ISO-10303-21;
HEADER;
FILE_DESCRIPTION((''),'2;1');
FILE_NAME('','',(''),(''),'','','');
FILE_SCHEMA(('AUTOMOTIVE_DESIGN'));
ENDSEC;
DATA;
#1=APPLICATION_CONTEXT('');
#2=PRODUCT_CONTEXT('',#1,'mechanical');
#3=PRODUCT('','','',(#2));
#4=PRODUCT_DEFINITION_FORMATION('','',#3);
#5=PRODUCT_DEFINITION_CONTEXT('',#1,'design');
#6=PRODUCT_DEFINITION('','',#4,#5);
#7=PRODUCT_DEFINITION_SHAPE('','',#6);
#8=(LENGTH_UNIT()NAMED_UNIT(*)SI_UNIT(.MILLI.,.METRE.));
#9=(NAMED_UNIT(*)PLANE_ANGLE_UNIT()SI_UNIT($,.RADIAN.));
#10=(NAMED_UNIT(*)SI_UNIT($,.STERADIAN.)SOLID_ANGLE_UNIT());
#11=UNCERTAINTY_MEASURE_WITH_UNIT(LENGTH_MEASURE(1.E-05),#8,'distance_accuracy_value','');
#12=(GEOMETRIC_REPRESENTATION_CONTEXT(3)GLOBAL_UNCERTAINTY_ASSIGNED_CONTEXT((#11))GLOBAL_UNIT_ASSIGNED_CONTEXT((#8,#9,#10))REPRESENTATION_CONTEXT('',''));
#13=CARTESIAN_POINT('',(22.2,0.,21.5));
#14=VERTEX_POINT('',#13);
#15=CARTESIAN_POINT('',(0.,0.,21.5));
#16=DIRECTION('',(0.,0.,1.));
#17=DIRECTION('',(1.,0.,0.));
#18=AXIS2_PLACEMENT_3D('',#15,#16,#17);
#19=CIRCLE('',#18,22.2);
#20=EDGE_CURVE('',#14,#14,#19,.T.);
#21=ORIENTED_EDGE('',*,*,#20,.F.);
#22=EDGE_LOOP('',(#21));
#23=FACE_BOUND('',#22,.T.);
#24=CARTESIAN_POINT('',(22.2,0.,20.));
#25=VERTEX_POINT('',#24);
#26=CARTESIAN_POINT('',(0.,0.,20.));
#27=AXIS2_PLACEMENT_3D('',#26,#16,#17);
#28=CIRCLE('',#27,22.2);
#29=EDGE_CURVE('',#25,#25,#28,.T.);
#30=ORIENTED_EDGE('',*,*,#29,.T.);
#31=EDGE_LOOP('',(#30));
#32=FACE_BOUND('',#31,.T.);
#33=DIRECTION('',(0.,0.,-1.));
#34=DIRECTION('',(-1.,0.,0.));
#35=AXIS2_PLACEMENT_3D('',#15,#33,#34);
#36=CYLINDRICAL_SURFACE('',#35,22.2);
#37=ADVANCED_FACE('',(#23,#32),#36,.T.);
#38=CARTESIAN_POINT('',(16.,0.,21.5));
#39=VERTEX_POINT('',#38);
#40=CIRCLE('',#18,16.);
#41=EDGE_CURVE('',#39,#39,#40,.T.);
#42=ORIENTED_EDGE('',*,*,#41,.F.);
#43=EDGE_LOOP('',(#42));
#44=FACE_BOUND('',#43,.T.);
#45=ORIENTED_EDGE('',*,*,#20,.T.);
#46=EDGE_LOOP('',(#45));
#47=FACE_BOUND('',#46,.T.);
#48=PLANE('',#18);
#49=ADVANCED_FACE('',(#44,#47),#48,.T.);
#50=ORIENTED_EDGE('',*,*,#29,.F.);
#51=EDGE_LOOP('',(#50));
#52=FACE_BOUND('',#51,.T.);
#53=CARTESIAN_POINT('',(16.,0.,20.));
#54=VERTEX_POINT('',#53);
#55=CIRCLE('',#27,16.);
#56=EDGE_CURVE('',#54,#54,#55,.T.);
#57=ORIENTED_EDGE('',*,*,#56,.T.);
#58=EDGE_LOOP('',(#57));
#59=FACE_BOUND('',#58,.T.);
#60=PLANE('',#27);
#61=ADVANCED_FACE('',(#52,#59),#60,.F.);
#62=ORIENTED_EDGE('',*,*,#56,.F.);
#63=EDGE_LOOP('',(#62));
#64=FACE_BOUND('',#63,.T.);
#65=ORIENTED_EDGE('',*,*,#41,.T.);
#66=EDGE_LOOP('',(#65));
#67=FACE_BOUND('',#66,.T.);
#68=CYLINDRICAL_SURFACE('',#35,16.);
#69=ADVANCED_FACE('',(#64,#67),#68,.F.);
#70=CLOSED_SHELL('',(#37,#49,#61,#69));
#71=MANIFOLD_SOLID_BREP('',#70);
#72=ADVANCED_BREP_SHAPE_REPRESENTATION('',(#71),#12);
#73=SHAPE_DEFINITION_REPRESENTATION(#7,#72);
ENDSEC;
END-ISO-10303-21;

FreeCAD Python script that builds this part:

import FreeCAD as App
import Part
import Sketcher
from FreeCAD import Vector

doc = App.newDocument("Part")
body = doc.addObject("PartDesign::Body", "Body")

# Sketch on XY plane
sketch1 = body.newObject("Sketcher::SketchObject", "Sketch")
sketch1.AttachmentSupport = (doc.getObject("XY_Plane"), [""])
sketch1.MapMode = "FlatFace"
sketch1.AttachmentOffset = App.Placement(Vector(0, 0, 20), App.Rotation())
sketch1.addGeometry([
    Part.Circle(Vector(0, 0, 0), Vector(0, 0, 1), 22),
    Part.Circle(Vector(0, 0, 0), Vector(0, 0, 1), 16),
], False)
sketch1.addConstraint([
    Sketcher.Constraint("Coincident", 0, 3, -1, 1),
    Sketcher.Constraint("Coincident", 1, 3, -1, 1),
    Sketcher.Constraint("Diameter", 1, 32.0),
    Sketcher.Constraint("Diameter", 0, 44.4),
])
pad1 = body.newObject("PartDesign::Pad", "Pad")
pad1.Profile = sketch1
pad1.Length = 1.5

doc.recompute()
